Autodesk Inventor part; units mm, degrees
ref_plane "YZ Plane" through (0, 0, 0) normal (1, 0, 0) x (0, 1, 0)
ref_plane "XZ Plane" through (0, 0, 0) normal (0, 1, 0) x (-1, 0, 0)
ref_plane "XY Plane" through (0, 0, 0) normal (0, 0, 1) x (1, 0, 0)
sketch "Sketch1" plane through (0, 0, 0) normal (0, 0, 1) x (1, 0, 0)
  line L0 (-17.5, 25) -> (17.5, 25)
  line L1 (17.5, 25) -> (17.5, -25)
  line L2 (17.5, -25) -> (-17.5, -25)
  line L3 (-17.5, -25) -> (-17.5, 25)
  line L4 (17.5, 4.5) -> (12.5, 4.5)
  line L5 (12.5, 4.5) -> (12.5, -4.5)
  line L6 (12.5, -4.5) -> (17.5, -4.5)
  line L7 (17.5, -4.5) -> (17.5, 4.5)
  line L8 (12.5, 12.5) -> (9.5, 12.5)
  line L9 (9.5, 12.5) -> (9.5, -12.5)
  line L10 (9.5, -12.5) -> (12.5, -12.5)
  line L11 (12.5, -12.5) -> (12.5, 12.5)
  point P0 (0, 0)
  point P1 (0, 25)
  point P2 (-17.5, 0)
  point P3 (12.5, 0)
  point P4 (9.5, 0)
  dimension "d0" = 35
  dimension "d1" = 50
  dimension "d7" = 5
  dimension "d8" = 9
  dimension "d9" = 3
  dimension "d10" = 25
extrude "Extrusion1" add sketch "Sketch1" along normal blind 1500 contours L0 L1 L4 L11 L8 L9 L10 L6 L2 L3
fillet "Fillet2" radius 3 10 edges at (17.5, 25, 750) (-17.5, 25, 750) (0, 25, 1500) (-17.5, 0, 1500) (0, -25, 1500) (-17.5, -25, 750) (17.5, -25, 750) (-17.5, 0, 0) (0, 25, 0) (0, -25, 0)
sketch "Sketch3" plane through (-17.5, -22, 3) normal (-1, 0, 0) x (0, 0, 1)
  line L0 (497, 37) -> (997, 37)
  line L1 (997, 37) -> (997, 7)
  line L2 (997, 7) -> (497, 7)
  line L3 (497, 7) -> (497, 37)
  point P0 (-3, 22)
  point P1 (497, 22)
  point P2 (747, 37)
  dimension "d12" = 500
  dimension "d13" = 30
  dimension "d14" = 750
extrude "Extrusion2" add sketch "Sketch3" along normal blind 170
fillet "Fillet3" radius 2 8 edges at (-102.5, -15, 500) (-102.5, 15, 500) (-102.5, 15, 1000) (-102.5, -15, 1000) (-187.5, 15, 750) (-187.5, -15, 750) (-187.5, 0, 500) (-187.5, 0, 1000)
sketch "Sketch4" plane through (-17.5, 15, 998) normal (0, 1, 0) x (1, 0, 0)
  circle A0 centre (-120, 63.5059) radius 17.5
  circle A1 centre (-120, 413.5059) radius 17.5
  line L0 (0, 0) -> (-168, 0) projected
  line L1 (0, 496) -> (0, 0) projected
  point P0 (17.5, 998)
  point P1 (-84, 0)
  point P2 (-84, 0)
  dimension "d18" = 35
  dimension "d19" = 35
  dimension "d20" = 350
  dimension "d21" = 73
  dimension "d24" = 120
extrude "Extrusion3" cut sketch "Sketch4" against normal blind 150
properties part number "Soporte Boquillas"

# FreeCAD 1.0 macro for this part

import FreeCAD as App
import Part
import Sketcher

V = App.Vector
Q = App.Units.Quantity


def edges_at(feature, points):
    """Names of the edges that pass closest to the given points."""
    edges = feature.Shape.Edges
    near = lambda p: min(range(len(edges)), key=lambda i: edges[i].distToShape(Part.Vertex(*p))[0])
    return sorted({f"Edge{near(p) + 1}" for p in points})

doc = App.newDocument("Part")
body = doc.addObject("PartDesign::Body", "Body")

sketch1 = doc.addObject("Sketcher::SketchObject", "Sketch")
body.addObject(sketch1)
sketch1.AttachmentSupport = (doc.XY_Plane, [""])
sketch1.MapMode = "FlatFace"
sketch1.addGeometry(Part.LineSegment(V(17.5, 25, 0), V(-17.5, 25, 0)), False)
sketch1.addGeometry(Part.LineSegment(V(-17.5, 25, 0), V(-17.5, -25, 0)), False)
sketch1.addGeometry(Part.LineSegment(V(-17.5, -25, 0), V(17.5, -25, 0)), False)
sketch1.addGeometry(Part.LineSegment(V(17.5, -25, 0), V(17.5, -4.5, 0)), False)
sketch1.addGeometry(Part.LineSegment(V(17.5, -4.5, 0), V(12.5, -4.5, 0)), False)
sketch1.addGeometry(Part.LineSegment(V(12.5, -4.5, 0), V(12.5, -12.5, 0)), False)
sketch1.addGeometry(Part.LineSegment(V(12.5, -12.5, 0), V(9.5, -12.5, 0)), False)
sketch1.addGeometry(Part.LineSegment(V(9.5, -12.5, 0), V(9.5, 12.5, 0)), False)
sketch1.addGeometry(Part.LineSegment(V(9.5, 12.5, 0), V(12.5, 12.5, 0)), False)
sketch1.addGeometry(Part.LineSegment(V(12.5, 12.5, 0), V(12.5, 4.5, 0)), False)
sketch1.addGeometry(Part.LineSegment(V(12.5, 4.5, 0), V(17.5, 4.5, 0)), False)
sketch1.addGeometry(Part.LineSegment(V(17.5, 4.5, 0), V(17.5, 25, 0)), False)
sketch1.addConstraint(Sketcher.Constraint("Coincident", 0, 2, 1, 1))
sketch1.addConstraint(Sketcher.Constraint("Coincident", 1, 2, 2, 1))
sketch1.addConstraint(Sketcher.Constraint("Coincident", 2, 2, 3, 1))
sketch1.addConstraint(Sketcher.Constraint("Coincident", 3, 2, 4, 1))
sketch1.addConstraint(Sketcher.Constraint("Coincident", 4, 2, 5, 1))
sketch1.addConstraint(Sketcher.Constraint("Coincident", 5, 2, 6, 1))
sketch1.addConstraint(Sketcher.Constraint("Coincident", 6, 2, 7, 1))
sketch1.addConstraint(Sketcher.Constraint("Coincident", 7, 2, 8, 1))
sketch1.addConstraint(Sketcher.Constraint("Coincident", 8, 2, 9, 1))
sketch1.addConstraint(Sketcher.Constraint("Coincident", 9, 2, 10, 1))
sketch1.addConstraint(Sketcher.Constraint("Coincident", 10, 2, 11, 1))
sketch1.addConstraint(Sketcher.Constraint("Coincident", 11, 2, 0, 1))
sketch1.addConstraint(Sketcher.Constraint("Horizontal", 0))
sketch1.addConstraint(Sketcher.Constraint("Vertical", 1))
sketch1.addConstraint(Sketcher.Constraint("Horizontal", 2))
sketch1.addConstraint(Sketcher.Constraint("Vertical", 3))
sketch1.addConstraint(Sketcher.Constraint("Horizontal", 4))
sketch1.addConstraint(Sketcher.Constraint("Vertical", 5))
sketch1.addConstraint(Sketcher.Constraint("Horizontal", 6))
sketch1.addConstraint(Sketcher.Constraint("Vertical", 7))
sketch1.addConstraint(Sketcher.Constraint("Horizontal", 8))
sketch1.addConstraint(Sketcher.Constraint("Vertical", 9))
sketch1.addConstraint(Sketcher.Constraint("Horizontal", 10))
sketch1.addConstraint(Sketcher.Constraint("Vertical", 11))
sketch1.addConstraint(Sketcher.Constraint("Symmetric", 0, 2, 2, 2, -1, 1))
sketch1.addConstraint(Sketcher.Constraint("Symmetric", 5, 2, 8, 2, -1))
sketch1.addConstraint(Sketcher.Constraint("Symmetric", 3, 2, 10, 2, -1))
sketch1.addConstraint(Sketcher.Constraint("DistanceX", 0, 2, 0, 1, Q("35 mm")))
sketch1.addConstraint(Sketcher.Constraint("DistanceX", 4, 2, 4, 1, Q("5 mm")))
sketch1.addConstraint(Sketcher.Constraint("DistanceX", 6, 2, 6, 1, Q("3 mm")))
sketch1.addConstraint(Sketcher.Constraint("DistanceY", 1, 2, 1, 1, Q("50 mm")))
sketch1.addConstraint(Sketcher.Constraint("DistanceY", 7, 1, 7, 2, Q("25 mm")))
sketch1.addConstraint(Sketcher.Constraint("DistanceY", 4, 2, 9, 2, Q("9 mm")))
pad1 = doc.addObject("PartDesign::Pad", "Pad")
body.addObject(pad1)
pad1.Profile = sketch1
pad1.Length = 1500
doc.recompute()

fillet = doc.addObject("PartDesign::Fillet", "Fillet")
body.addObject(fillet)
fillet.Base = (pad1, edges_at(pad1, [
    (17.5, 25, 750),
    (-17.5, 25, 750),
    (0, 25, 1500),
    (-17.5, 0, 1500),
    (0, -25, 1500),
    (-17.5, -25, 750),
    (17.5, -25, 750),
    (-17.5, 0, 0),
    (0, 25, 0),
    (0, -25, 0),
]))
fillet.Radius = 3

sketch2 = doc.addObject("Sketcher::SketchObject", "Sketch001")
body.addObject(sketch2)
sketch2.AttachmentSupport = (doc.YZ_Plane, [""])
sketch2.MapMode = "FlatFace"
sketch2.AttachmentOffset = App.Placement(V(0, 0, -17.5), App.Rotation())
sketch2.addGeometry(Part.LineSegment(V(15, 1000, 0), V(15, 500, 0)), False)
sketch2.addGeometry(Part.LineSegment(V(15, 500, 0), V(-15, 500, 0)), False)
sketch2.addGeometry(Part.LineSegment(V(-15, 500, 0), V(-15, 1000, 0)), False)
sketch2.addGeometry(Part.LineSegment(V(-15, 1000, 0), V(15, 1000, 0)), False)
sketch2.addConstraint(Sketcher.Constraint("Coincident", 0, 2, 1, 1))
sketch2.addConstraint(Sketcher.Constraint("Coincident", 1, 2, 2, 1))
sketch2.addConstraint(Sketcher.Constraint("Coincident", 2, 2, 3, 1))
sketch2.addConstraint(Sketcher.Constraint("Coincident", 3, 2, 0, 1))
sketch2.addConstraint(Sketcher.Constraint("Vertical", 0))
sketch2.addConstraint(Sketcher.Constraint("Horizontal", 1))
sketch2.addConstraint(Sketcher.Constraint("Vertical", 2))
sketch2.addConstraint(Sketcher.Constraint("Horizontal", 3))
sketch2.addConstraint(Sketcher.Constraint("DistanceX", 1, 2, 1, 1, Q("30 mm")))
sketch2.addConstraint(Sketcher.Constraint("DistanceY", 0, 2, 0, 1, Q("500 mm")))
sketch2.addConstraint(Sketcher.Constraint("DistanceY", -1, 1, 0, 2, Q("500 mm")))
sketch2.addConstraint(Sketcher.Constraint("DistanceX", -1, 1, 0, 2, Q("15 mm")))
pad2 = doc.addObject("PartDesign::Pad", "Pad001")
body.addObject(pad2)
pad2.Profile = sketch2
pad2.Length = 170
pad2.Reversed = True
doc.recompute()

fillet2 = doc.addObject("PartDesign::Fillet", "Fillet001")
body.addObject(fillet2)
fillet2.Base = (pad2, edges_at(pad2, [
    (-102.5, -15, 500),
    (-102.5, 15, 500),
    (-102.5, 15, 1000),
    (-102.5, -15, 1000),
    (-187.5, 15, 750),
    (-187.5, -15, 750),
    (-187.5, 0, 500),
    (-187.5, 0, 1000),
]))
fillet2.Radius = 2

sketch3 = doc.addObject("Sketcher::SketchObject", "Sketch002")
body.addObject(sketch3)
sketch3.AttachmentSupport = (doc.XZ_Plane, [""])
sketch3.MapMode = "FlatFace"
sketch3.AttachmentOffset = App.Placement(V(0, 0, -15), App.Rotation())
sketch3.addGeometry(Part.Circle(V(-138, 934, 0), V(0, 0, 1), 18), False)
sketch3.addGeometry(Part.Circle(V(-138, 584, 0), V(0, 0, 1), 18), False)
sketch3.addConstraint(Sketcher.Constraint("Equal", 0, 1))
sketch3.addConstraint(Sketcher.Constraint("Vertical", 0, 3, 1, 3))
sketch3.addConstraint(Sketcher.Constraint("Diameter", 0, Q("35 mm")))
sketch3.addConstraint(Sketcher.Constraint("DistanceY", 1, 3, 0, 3, Q("350 mm")))
sketch3.addConstraint(Sketcher.Constraint("DistanceX", 0, 3, -1, 1, Q("137.5 mm")))
sketch3.addConstraint(Sketcher.Constraint("DistanceY", -1, 1, 0, 3, Q("934.494 mm")))
pocket1 = doc.addObject("PartDesign::Pocket", "Pocket")
body.addObject(pocket1)
pocket1.Profile = sketch3
pocket1.Length = 150
pocket1.Reversed = True

doc.recompute()
